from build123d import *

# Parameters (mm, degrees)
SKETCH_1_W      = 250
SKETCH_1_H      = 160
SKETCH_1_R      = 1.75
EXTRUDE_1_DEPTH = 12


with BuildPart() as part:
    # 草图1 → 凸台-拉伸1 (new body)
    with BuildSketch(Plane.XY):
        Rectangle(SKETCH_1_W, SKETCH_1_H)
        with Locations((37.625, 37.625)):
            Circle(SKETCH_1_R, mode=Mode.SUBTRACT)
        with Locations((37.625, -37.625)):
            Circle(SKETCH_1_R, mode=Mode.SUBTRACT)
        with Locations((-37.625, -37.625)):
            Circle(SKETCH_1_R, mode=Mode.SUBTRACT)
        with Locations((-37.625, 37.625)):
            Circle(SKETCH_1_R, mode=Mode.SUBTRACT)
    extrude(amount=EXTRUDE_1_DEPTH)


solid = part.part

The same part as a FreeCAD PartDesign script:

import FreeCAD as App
import Part
import Sketcher
from FreeCAD import Vector


def add_polygon(sketch, points):
    """Adds a closed chain of lines whose ends are joined by coincident constraints."""
    first, n = sketch.GeometryCount, len(points)
    for a, b in zip(points, points[1:] + points[:1]):
        sketch.addGeometry(Part.LineSegment(App.Vector(*a, 0), App.Vector(*b, 0)), False)
    for i in range(n):
        sketch.addConstraint(Sketcher.Constraint("Coincident", first + i, 2, first + (i + 1) % n, 1))

doc = App.newDocument("Part")
body = doc.addObject("PartDesign::Body", "Body")

# Sketch on XY plane
sketch1 = doc.addObject("Sketcher::SketchObject", "Sketch")
body.addObject(sketch1)
sketch1.AttachmentSupport = (doc.XY_Plane, [""])
sketch1.MapMode = "FlatFace"
add_polygon(sketch1, [(-125, 80), (-125, -80), (125, -80), (125, 80)])  # lines 0-3
sketch1.addGeometry(Part.Circle(Vector(-37.6, -37.6, 0), Vector(0, 0, 1), 1.8), False)  # 4
sketch1.addGeometry(Part.Circle(Vector(37.6, -37.6, 0), Vector(0, 0, 1), 1.8), False)  # 5
sketch1.addGeometry(Part.Circle(Vector(-37.6, 37.6, 0), Vector(0, 0, 1), 1.8), False)  # 6
sketch1.addGeometry(Part.Circle(Vector(37.6, 37.6, 0), Vector(0, 0, 1), 1.8), False)  # 7
sketch1.addConstraint(Sketcher.Constraint("Vertical", 0))
sketch1.addConstraint(Sketcher.Constraint("Horizontal", 1))
sketch1.addConstraint(Sketcher.Constraint("Vertical", 2))
sketch1.addConstraint(Sketcher.Constraint("Horizontal", 3))
sketch1.addConstraint(Sketcher.Constraint("Equal", 4, 5))
sketch1.addConstraint(Sketcher.Constraint("Equal", 5, 6))
sketch1.addConstraint(Sketcher.Constraint("Equal", 6, 7))
sketch1.addConstraint(Sketcher.Constraint("Symmetric", 5, 3, 6, 3, -1, 1))
sketch1.addConstraint(Sketcher.Constraint("Symmetric", 4, 3, 7, 3, -1, 1))
sketch1.addConstraint(Sketcher.Constraint("Symmetric", 0, 2, 2, 2, -1, 1))
sketch1.addConstraint(Sketcher.Constraint("Symmetric", 4, 3, 5, 3, -2))
sketch1.addConstraint(Sketcher.Constraint("Diameter", 4, 3.5))
sketch1.addConstraint(Sketcher.Constraint("DistanceX", 1, 1, 1, 2, 250.0))
sketch1.addConstraint(Sketcher.Constraint("DistanceY", 0, 2, 0, 1, 160.0))
sketch1.addConstraint(Sketcher.Constraint("DistanceX", 4, 3, 5, 3, 75.25))
sketch1.addConstraint(Sketcher.Constraint("DistanceY", 4, 3, 6, 3, 75.25))
pad1 = doc.addObject("PartDesign::Pad", "Pad")
body.addObject(pad1)
pad1.Profile = sketch1
pad1.Length = 12

doc.recompute()
